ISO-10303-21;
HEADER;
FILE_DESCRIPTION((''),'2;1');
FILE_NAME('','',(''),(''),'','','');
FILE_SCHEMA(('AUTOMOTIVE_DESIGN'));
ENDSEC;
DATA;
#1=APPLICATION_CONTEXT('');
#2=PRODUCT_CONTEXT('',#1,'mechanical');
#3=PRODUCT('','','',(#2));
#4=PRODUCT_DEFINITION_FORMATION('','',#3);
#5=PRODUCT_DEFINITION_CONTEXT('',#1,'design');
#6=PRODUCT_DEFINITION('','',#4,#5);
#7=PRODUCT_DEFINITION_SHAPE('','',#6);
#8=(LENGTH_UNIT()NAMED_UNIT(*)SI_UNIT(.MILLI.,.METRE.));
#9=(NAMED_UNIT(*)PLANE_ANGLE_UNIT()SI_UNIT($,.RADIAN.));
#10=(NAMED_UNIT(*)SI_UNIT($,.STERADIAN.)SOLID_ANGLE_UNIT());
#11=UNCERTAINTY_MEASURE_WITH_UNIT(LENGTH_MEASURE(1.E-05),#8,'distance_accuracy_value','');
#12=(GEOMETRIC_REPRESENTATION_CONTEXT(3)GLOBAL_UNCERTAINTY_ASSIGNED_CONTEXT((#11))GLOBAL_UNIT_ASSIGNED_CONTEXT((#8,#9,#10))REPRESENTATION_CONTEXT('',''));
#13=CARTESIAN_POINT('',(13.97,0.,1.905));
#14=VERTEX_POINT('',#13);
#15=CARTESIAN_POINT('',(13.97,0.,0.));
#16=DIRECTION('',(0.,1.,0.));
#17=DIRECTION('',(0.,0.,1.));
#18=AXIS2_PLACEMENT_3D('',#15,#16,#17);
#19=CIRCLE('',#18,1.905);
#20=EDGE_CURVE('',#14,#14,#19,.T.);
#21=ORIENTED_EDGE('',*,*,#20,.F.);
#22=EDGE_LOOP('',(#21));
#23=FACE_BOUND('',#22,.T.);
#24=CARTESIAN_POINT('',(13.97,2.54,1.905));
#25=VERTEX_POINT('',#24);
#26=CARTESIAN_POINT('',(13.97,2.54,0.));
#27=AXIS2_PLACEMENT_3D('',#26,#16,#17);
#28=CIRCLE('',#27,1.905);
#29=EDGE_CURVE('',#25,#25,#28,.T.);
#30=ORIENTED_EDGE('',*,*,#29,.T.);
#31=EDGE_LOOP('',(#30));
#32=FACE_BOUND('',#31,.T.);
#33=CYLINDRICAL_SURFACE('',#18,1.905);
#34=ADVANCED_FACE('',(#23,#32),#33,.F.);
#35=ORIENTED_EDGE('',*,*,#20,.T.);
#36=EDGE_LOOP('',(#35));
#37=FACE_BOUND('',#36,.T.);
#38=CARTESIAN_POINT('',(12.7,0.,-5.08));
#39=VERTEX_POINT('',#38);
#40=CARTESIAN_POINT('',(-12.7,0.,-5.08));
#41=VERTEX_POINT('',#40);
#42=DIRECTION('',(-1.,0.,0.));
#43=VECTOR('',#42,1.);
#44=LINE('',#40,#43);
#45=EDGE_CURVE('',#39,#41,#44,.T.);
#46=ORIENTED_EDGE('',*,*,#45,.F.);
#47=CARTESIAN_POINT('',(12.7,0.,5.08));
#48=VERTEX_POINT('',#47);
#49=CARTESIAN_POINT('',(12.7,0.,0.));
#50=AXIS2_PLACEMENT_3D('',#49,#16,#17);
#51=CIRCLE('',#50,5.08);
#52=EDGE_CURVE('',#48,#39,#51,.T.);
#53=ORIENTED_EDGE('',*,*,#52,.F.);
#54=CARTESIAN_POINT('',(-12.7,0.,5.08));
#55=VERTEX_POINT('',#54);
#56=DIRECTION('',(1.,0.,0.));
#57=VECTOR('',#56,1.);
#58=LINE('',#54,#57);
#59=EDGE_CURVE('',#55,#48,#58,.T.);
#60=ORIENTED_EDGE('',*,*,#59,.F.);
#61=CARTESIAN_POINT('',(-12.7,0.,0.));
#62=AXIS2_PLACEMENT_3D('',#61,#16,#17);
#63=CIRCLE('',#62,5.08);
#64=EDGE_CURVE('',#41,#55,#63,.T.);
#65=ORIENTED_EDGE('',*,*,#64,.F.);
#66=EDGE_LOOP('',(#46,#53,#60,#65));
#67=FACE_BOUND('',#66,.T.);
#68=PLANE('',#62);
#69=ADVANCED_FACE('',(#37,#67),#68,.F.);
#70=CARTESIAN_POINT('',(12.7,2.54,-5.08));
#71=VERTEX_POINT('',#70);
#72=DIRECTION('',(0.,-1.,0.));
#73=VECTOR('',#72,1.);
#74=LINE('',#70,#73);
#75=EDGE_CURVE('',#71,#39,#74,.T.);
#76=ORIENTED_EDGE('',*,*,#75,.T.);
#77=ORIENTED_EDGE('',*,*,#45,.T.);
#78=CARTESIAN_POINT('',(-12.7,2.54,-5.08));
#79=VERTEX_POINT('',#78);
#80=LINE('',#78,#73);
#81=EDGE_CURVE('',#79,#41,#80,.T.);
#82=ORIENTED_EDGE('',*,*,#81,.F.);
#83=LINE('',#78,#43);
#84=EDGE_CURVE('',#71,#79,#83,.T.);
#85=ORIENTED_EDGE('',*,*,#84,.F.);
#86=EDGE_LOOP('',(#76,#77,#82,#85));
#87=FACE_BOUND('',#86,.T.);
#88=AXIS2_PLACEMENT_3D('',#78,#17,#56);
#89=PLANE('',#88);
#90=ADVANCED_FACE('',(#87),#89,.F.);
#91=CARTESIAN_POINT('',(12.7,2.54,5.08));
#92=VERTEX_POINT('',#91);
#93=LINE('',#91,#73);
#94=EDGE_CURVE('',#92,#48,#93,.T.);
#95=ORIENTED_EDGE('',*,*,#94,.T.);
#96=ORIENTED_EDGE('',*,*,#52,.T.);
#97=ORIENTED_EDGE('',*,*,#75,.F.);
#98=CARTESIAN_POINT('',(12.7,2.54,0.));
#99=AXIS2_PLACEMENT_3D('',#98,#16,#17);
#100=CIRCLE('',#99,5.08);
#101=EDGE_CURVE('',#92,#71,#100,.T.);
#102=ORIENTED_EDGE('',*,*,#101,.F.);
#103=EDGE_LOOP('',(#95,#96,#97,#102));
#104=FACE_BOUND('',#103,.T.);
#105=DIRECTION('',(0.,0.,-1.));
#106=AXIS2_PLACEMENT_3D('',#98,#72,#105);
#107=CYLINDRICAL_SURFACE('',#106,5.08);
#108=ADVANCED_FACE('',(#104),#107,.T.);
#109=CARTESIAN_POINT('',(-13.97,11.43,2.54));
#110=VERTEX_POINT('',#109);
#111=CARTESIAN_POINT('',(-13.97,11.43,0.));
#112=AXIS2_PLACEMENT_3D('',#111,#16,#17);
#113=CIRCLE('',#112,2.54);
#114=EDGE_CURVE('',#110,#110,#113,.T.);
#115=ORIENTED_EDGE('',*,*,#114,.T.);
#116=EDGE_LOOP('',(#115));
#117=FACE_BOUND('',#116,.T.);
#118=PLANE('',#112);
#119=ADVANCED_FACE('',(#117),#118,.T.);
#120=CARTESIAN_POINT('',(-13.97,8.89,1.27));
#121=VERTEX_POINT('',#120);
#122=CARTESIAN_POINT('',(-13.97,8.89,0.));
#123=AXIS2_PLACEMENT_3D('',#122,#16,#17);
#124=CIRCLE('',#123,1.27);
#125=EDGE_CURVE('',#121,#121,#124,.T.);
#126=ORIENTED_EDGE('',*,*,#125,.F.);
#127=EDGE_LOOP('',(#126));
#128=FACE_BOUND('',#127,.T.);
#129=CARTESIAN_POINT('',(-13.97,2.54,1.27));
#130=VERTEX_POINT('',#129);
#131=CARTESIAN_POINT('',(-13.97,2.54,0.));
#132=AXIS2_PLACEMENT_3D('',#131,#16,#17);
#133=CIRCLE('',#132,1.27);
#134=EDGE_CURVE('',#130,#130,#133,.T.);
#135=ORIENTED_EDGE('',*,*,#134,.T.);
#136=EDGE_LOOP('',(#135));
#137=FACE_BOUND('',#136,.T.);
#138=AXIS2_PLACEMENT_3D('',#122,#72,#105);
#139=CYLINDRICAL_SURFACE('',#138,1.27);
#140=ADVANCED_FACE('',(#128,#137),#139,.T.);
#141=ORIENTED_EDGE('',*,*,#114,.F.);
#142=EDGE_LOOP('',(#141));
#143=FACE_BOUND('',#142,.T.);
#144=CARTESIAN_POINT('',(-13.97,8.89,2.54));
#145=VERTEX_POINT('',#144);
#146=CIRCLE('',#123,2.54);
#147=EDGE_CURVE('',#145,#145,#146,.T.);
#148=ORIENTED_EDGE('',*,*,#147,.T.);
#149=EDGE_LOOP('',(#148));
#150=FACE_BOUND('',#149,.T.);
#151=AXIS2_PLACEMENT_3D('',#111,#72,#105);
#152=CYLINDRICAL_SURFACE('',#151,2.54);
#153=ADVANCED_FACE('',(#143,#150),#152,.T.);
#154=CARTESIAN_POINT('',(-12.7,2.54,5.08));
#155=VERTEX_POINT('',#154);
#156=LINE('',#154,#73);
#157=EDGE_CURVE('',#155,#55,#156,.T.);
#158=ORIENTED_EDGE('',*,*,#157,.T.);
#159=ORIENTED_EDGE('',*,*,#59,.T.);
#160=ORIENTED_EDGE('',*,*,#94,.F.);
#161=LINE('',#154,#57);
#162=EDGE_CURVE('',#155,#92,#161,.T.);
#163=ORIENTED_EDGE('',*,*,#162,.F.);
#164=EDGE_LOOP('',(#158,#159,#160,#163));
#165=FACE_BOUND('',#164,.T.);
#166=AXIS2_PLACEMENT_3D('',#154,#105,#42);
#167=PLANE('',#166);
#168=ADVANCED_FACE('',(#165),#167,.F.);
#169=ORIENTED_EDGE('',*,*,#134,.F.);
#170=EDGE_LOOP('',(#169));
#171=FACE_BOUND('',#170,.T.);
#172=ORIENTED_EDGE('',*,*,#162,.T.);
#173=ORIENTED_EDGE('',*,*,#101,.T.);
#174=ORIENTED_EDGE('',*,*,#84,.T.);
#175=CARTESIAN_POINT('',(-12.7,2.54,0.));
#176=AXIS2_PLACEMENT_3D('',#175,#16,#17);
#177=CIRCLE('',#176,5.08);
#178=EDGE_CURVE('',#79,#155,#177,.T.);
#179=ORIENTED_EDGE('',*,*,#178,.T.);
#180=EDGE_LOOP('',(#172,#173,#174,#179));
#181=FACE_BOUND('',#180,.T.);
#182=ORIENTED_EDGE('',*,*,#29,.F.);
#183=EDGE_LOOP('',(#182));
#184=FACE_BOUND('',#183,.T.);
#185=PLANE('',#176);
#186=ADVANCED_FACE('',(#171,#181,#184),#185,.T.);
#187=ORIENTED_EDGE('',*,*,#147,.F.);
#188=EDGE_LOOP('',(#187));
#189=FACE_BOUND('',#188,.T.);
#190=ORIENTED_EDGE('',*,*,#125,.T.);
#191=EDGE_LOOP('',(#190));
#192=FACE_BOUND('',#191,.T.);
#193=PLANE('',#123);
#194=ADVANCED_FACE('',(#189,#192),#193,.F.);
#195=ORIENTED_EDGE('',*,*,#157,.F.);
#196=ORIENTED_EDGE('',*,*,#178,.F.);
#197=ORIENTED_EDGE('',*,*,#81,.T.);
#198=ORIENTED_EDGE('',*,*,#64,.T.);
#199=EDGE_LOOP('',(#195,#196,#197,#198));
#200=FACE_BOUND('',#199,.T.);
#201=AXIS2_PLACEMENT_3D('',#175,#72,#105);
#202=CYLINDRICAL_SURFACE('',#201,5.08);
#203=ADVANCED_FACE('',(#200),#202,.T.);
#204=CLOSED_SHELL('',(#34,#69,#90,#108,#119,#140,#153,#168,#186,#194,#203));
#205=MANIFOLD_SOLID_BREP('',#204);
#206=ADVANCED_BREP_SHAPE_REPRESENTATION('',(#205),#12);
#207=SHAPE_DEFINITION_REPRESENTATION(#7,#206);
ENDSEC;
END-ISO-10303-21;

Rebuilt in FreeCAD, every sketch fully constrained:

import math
import FreeCAD as App
import Part
import Sketcher
from FreeCAD import Vector
Q = App.Units.Quantity

doc = App.newDocument("Part")
body = doc.addObject("PartDesign::Body", "Body")

sketch1 = body.newObject("Sketcher::SketchObject", "Sketch")
sketch1.AttachmentSupport = (doc.getObject("XZ_Plane"), [""])
sketch1.MapMode = "FlatFace"
sketch1.addGeometry([
    Part.LineSegment(Vector(13, -5, 0), Vector(-13, -5, 0)),
    Part.ArcOfCircle(Part.Circle(Vector(-13, 0, 0), Vector(0, 0, 1), 5), math.radians(90), math.radians(270)),
    Part.LineSegment(Vector(-13, 5, 0), Vector(13, 5, 0)),
    Part.ArcOfCircle(Part.Circle(Vector(13, 0, 0), Vector(0, 0, 1), 5), math.radians(-90), math.radians(90)),
], False)
sketch1.addConstraint([
    Sketcher.Constraint("Tangent", 0, 2, 1, 2),
    Sketcher.Constraint("Tangent", 1, 1, 2, 1),
    Sketcher.Constraint("Tangent", 2, 2, 3, 2),
    Sketcher.Constraint("Tangent", 3, 1, 0, 1),
    Sketcher.Constraint("Horizontal", 0),
    Sketcher.Constraint("Horizontal", 2),
    Sketcher.Constraint("Symmetric", 1, 3, 3, 3, -1, 1),
    Sketcher.Constraint("Radius", 1, Q("0.2 in")),
    Sketcher.Constraint("DistanceX", 0, 2, 0, 1, Q("1 in")),
])
pad1 = body.newObject("PartDesign::Pad", "Pad")
pad1.Profile = sketch1
pad1.Length = Q("0.1 in")
pad1.Reversed = True

sketch2 = body.newObject("Sketcher::SketchObject", "Sketch001")
sketch2.AttachmentSupport = (doc.getObject("XZ_Plane"), [""])
sketch2.MapMode = "FlatFace"
sketch2.AttachmentOffset = App.Placement(Vector(0, 0, -0.1 * 25.4), App.Rotation())
sketch2.addGeometry(Part.Circle(Vector(-14, 0, 0), Vector(0, 0, 1), 1.3), False)
sketch2.addConstraint([
    Sketcher.Constraint("PointOnObject", 0, 3, -1),
    Sketcher.Constraint("Diameter", 0, Q("0.1 in")),
    Sketcher.Constraint("DistanceX", 0, 3, -1, 1, Q("0.55 in")),
])
pad2 = body.newObject("PartDesign::Pad", "Pad001")
pad2.Profile = sketch2
pad2.Length = Q("0.25 in")
pad2.Reversed = True

sketch3 = body.newObject("Sketcher::SketchObject", "Sketch002")
sketch3.AttachmentSupport = (doc.getObject("XZ_Plane"), [""])
sketch3.MapMode = "FlatFace"
sketch3.AttachmentOffset = App.Placement(Vector(0, 0, -0.35 * 25.4), App.Rotation())
sketch3.addGeometry(Part.Circle(Vector(-14, 0, 0), Vector(0, 0, 1), 2.5), False)
sketch3.addConstraint([
    Sketcher.Constraint("PointOnObject", 0, 3, -1),
    Sketcher.Constraint("Diameter", 0, Q("0.2 in")),
    Sketcher.Constraint("DistanceX", 0, 3, -1, 1, Q("0.55 in")),
])
pad3 = body.newObject("PartDesign::Pad", "Pad002")
pad3.Profile = sketch3
pad3.Length = Q("0.1 in")
pad3.Reversed = True

sketch4 = body.newObject("Sketcher::SketchObject", "Sketch003")
sketch4.AttachmentSupport = (doc.getObject("XZ_Plane"), [""])
sketch4.MapMode = "FlatFace"
sketch4.AttachmentOffset = App.Placement(Vector(0, 0, -0.1 * 25.4), App.Rotation())
sketch4.addGeometry(Part.Circle(Vector(14, 0, 0), Vector(0, 0, 1), 1.9), False)
sketch4.addConstraint([
    Sketcher.Constraint("PointOnObject", 0, 3, -1),
    Sketcher.Constraint("Diameter", 0, Q("0.15 in")),
    Sketcher.Constraint("DistanceX", -1, 1, 0, 3, Q("0.55 in")),
])
pocket1 = body.newObject("PartDesign::Pocket", "Pocket")
pocket1.Profile = sketch4
pocket1.Length = Q("0.1 in")
pocket1.Reversed = True

doc.recompute()
